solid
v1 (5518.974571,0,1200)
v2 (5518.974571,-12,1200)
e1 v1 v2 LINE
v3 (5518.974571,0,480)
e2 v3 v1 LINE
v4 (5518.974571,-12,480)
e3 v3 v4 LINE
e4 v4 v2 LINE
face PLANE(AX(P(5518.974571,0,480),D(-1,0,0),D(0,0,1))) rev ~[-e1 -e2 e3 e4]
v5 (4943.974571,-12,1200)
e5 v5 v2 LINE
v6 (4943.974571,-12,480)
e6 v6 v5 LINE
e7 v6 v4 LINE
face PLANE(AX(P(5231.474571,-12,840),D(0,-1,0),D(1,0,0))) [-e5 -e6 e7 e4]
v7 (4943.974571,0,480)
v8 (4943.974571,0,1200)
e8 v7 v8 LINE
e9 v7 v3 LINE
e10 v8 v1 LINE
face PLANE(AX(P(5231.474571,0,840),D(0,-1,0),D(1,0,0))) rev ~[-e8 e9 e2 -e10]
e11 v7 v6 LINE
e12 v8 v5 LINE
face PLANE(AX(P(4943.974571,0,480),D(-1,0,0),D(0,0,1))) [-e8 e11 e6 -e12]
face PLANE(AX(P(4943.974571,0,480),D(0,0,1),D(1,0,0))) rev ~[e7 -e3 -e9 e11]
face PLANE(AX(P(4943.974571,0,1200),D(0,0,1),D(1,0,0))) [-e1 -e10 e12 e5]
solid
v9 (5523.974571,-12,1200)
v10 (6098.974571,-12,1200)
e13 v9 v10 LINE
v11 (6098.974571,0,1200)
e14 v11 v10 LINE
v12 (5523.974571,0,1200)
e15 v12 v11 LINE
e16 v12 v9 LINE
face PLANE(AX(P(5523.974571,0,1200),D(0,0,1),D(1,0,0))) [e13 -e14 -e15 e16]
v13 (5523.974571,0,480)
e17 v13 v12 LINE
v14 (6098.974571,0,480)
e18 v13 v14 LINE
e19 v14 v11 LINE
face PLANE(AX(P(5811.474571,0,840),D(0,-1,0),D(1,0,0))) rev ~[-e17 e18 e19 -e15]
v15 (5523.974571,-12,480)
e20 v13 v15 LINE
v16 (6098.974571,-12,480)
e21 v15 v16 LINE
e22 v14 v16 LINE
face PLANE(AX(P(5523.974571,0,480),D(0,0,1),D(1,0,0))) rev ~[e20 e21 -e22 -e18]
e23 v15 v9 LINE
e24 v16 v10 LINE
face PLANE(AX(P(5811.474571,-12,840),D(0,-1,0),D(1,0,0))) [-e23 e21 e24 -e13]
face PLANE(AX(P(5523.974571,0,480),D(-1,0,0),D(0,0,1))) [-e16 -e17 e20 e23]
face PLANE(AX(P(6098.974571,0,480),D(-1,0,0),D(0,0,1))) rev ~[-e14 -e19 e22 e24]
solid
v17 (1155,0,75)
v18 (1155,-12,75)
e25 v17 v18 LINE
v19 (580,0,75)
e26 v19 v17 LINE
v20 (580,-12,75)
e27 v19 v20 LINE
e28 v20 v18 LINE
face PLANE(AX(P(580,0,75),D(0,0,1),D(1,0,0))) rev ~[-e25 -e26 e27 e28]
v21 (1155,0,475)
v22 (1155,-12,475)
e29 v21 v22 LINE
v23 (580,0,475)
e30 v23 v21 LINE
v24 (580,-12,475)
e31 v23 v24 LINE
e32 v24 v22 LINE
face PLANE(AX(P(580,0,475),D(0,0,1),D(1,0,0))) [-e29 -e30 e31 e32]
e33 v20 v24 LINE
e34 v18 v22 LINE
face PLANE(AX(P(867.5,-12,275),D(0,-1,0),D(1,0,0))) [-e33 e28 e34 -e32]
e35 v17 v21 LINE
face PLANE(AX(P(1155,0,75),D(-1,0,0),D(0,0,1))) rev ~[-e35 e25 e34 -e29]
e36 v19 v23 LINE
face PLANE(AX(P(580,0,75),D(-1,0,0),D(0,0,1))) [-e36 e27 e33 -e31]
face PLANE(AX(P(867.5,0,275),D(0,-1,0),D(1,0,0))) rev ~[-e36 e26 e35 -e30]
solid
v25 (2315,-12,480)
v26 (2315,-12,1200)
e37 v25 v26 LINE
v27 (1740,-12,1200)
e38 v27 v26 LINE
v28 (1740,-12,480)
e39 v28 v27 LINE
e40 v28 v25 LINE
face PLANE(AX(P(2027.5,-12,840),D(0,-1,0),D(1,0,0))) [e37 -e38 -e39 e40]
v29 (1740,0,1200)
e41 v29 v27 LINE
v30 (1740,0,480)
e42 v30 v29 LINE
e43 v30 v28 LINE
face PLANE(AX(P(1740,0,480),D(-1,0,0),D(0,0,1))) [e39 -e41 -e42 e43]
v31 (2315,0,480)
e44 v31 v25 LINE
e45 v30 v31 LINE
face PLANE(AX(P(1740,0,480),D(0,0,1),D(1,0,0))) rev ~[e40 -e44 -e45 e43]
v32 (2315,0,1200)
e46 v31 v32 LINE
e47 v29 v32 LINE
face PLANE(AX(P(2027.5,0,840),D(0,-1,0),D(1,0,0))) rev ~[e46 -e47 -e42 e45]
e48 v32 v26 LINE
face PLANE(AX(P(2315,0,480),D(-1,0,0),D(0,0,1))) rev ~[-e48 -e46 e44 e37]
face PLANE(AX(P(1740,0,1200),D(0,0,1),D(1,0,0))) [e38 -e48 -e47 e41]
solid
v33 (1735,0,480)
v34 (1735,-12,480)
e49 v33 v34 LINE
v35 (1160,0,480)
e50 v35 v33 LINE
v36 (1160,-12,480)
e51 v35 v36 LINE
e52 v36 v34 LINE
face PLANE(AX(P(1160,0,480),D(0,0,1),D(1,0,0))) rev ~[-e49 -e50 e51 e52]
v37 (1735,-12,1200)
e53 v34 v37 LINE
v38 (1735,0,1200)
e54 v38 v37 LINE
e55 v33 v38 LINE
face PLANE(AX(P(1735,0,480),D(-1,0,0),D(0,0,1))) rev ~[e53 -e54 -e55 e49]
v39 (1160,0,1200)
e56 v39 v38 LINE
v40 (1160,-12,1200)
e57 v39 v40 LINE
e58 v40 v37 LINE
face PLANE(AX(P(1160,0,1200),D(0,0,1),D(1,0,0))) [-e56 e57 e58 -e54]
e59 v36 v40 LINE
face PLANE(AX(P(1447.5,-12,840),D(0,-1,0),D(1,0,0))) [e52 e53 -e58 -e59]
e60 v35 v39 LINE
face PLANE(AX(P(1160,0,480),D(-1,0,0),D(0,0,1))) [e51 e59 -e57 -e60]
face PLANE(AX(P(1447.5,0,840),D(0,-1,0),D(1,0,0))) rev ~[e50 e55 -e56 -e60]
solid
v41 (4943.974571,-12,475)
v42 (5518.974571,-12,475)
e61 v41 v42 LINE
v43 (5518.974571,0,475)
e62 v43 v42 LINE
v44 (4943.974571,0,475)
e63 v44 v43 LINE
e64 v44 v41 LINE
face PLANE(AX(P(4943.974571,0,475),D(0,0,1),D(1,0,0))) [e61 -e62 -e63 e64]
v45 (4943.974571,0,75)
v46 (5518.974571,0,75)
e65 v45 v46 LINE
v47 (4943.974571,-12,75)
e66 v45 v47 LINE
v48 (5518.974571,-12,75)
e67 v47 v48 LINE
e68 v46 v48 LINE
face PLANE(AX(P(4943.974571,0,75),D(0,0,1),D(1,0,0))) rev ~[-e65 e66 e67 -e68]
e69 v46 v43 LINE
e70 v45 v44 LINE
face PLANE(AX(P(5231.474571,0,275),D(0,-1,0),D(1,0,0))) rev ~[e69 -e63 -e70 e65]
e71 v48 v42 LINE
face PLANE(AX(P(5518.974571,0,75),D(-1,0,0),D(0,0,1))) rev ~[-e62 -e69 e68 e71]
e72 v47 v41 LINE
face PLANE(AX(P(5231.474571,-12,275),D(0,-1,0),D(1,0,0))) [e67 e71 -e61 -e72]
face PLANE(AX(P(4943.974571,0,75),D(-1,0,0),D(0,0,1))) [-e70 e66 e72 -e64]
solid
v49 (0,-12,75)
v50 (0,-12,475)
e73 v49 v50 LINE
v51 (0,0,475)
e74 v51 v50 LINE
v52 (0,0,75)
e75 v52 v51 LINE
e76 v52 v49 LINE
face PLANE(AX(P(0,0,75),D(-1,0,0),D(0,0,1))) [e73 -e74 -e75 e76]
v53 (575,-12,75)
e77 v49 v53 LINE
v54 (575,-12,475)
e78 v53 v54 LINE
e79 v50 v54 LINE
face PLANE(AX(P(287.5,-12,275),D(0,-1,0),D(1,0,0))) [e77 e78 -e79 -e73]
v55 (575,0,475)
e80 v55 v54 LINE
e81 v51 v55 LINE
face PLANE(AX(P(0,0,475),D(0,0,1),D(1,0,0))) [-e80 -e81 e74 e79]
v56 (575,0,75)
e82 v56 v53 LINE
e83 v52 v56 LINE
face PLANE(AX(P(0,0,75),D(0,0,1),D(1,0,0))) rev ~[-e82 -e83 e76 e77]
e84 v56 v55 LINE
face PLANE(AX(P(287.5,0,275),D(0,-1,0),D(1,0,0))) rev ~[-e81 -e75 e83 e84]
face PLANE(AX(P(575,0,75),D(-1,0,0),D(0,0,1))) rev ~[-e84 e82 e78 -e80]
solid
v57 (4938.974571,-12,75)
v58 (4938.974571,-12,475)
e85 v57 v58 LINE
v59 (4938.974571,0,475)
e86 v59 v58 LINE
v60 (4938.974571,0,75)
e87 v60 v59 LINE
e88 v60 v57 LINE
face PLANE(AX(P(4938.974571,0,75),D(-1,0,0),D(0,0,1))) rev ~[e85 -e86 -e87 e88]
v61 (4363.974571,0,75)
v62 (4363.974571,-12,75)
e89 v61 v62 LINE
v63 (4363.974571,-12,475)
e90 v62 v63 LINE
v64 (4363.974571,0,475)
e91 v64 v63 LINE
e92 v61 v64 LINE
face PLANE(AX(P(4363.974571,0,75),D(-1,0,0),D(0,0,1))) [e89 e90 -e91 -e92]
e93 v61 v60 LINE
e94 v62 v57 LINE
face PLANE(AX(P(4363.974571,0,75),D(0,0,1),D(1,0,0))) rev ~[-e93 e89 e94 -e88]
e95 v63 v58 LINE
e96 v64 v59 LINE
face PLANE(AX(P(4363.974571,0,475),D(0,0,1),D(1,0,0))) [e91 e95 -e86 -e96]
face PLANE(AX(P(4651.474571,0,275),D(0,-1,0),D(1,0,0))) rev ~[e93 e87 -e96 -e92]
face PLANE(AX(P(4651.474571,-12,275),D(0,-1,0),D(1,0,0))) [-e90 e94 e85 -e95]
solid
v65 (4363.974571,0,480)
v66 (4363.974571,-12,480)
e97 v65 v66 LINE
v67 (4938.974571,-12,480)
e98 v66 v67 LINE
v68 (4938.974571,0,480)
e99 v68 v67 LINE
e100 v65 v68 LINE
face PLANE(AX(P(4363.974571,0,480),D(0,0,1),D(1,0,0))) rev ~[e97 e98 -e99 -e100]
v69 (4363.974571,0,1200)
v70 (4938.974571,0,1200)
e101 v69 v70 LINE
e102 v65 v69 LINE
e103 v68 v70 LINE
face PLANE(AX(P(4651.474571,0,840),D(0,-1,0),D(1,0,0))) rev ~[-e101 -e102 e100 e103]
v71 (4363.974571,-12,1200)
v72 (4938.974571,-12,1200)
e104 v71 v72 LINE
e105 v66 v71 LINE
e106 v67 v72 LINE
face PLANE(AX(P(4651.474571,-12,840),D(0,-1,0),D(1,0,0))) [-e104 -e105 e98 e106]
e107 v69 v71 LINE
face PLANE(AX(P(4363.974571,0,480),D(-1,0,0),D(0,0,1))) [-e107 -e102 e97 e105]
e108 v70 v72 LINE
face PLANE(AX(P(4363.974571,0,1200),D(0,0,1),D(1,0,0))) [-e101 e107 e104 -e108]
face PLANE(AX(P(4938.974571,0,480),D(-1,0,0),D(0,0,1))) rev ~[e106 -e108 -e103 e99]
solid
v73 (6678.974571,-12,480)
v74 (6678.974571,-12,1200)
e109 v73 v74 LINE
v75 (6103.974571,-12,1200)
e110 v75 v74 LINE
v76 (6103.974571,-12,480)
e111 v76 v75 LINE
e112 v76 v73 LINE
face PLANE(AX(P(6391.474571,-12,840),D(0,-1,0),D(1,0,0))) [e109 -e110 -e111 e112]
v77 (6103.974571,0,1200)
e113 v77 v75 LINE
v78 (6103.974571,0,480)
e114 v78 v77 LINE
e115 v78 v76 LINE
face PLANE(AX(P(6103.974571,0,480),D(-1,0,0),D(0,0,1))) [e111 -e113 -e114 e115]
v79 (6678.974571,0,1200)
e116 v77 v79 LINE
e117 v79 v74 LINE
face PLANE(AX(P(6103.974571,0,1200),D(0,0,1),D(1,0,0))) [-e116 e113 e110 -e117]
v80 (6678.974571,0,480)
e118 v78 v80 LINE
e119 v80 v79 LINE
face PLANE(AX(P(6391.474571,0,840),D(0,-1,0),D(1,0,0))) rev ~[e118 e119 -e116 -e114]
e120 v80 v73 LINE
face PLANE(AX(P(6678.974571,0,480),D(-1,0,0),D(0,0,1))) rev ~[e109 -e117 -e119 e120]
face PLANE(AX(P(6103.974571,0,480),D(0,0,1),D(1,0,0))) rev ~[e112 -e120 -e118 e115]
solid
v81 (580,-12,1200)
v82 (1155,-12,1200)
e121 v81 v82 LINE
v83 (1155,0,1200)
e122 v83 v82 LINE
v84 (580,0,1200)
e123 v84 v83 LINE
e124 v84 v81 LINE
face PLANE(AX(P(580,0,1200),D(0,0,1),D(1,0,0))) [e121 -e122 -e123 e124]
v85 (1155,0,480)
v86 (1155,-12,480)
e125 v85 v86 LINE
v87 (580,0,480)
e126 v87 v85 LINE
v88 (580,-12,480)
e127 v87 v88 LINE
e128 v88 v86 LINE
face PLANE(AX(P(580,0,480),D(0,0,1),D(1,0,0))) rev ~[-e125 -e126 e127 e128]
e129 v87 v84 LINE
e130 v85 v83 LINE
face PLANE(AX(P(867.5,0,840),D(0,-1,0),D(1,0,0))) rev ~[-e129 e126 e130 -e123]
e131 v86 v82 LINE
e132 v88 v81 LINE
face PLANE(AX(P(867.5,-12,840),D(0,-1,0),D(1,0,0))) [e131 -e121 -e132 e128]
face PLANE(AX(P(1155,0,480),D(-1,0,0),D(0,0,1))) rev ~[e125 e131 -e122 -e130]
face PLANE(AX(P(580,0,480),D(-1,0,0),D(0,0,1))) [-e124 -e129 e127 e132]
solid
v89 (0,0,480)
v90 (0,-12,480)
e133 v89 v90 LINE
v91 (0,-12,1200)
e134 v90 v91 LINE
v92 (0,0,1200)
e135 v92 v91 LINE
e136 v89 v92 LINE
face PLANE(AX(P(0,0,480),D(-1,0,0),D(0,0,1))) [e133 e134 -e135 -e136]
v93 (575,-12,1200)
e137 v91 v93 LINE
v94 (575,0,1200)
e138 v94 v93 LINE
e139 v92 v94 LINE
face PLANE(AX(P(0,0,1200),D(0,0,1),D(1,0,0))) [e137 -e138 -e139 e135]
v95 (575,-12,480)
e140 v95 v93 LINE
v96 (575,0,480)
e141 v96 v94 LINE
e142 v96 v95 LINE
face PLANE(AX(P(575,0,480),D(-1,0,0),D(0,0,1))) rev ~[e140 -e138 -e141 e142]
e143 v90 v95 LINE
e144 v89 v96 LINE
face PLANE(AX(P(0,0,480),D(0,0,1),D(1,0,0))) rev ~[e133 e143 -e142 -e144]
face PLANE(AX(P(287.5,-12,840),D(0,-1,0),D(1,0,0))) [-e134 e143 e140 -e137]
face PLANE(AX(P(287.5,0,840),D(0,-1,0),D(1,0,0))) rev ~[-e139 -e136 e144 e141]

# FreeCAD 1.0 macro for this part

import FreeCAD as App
import Part
import Sketcher
Q = App.Units.Quantity

doc = App.newDocument("Part")
body = doc.addObject("PartDesign::Body", "Body")
body.AllowCompound = True

# Sketch on XZ plane
sketch1 = doc.addObject("Sketcher::SketchObject", "Sketch")
body.addObject(sketch1)
sketch1.AttachmentSupport = (doc.XZ_Plane, [""])
sketch1.MapMode = "FlatFace"
sketch1.addGeometry([
    Part.LineSegment(App.Vector(0, 1200, 0), App.Vector(0, 480, 0)),  # 0
    Part.LineSegment(App.Vector(0, 480, 0), App.Vector(575, 480, 0)),  # 1
    Part.LineSegment(App.Vector(575, 480, 0), App.Vector(575, 1200, 0)),  # 2
    Part.LineSegment(App.Vector(575, 1200, 0), App.Vector(0, 1200, 0)),  # 3
    Part.LineSegment(App.Vector(580, 1200, 0), App.Vector(580, 480, 0)),  # 4
    Part.LineSegment(App.Vector(580, 480, 0), App.Vector(1155, 480, 0)),  # 5
    Part.LineSegment(App.Vector(1155, 480, 0), App.Vector(1155, 1200, 0)),  # 6
    Part.LineSegment(App.Vector(1155, 1200, 0), App.Vector(580, 1200, 0)),  # 7
    Part.LineSegment(App.Vector(1160, 1200, 0), App.Vector(1160, 480, 0)),  # 8
    Part.LineSegment(App.Vector(1160, 480, 0), App.Vector(1735, 480, 0)),  # 9
    Part.LineSegment(App.Vector(1735, 480, 0), App.Vector(1735, 1200, 0)),  # 10
    Part.LineSegment(App.Vector(1735, 1200, 0), App.Vector(1160, 1200, 0)),  # 11
    Part.LineSegment(App.Vector(1740, 1200, 0), App.Vector(1740, 480, 0)),  # 12
    Part.LineSegment(App.Vector(1740, 480, 0), App.Vector(2315, 480, 0)),  # 13
    Part.LineSegment(App.Vector(2315, 480, 0), App.Vector(2315, 1200, 0)),  # 14
    Part.LineSegment(App.Vector(2315, 1200, 0), App.Vector(1740, 1200, 0)),  # 15
    Part.LineSegment(App.Vector(0, 475, 0), App.Vector(0, 75, 0)),  # 16
    Part.LineSegment(App.Vector(0, 75, 0), App.Vector(575, 75, 0)),  # 17
    Part.LineSegment(App.Vector(575, 75, 0), App.Vector(575, 475, 0)),  # 18
    Part.LineSegment(App.Vector(575, 475, 0), App.Vector(0, 475, 0)),  # 19
    Part.LineSegment(App.Vector(580, 475, 0), App.Vector(580, 75, 0)),  # 20
    Part.LineSegment(App.Vector(580, 75, 0), App.Vector(1155, 75, 0)),  # 21
    Part.LineSegment(App.Vector(1155, 75, 0), App.Vector(1155, 475, 0)),  # 22
    Part.LineSegment(App.Vector(1155, 475, 0), App.Vector(580, 475, 0)),  # 23
    Part.LineSegment(App.Vector(4364, 1200, 0), App.Vector(4364, 480, 0)),  # 24
    Part.LineSegment(App.Vector(4364, 480, 0), App.Vector(4939, 480, 0)),  # 25
    Part.LineSegment(App.Vector(4939, 480, 0), App.Vector(4939, 1200, 0)),  # 26
    Part.LineSegment(App.Vector(4939, 1200, 0), App.Vector(4364, 1200, 0)),  # 27
    Part.LineSegment(App.Vector(4944, 1200, 0), App.Vector(4944, 480, 0)),  # 28
    Part.LineSegment(App.Vector(4944, 480, 0), App.Vector(5519, 480, 0)),  # 29
    Part.LineSegment(App.Vector(5519, 480, 0), App.Vector(5519, 1200, 0)),  # 30
    Part.LineSegment(App.Vector(5519, 1200, 0), App.Vector(4944, 1200, 0)),  # 31
    Part.LineSegment(App.Vector(5524, 1200, 0), App.Vector(5524, 480, 0)),  # 32
    Part.LineSegment(App.Vector(5524, 480, 0), App.Vector(6099, 480, 0)),  # 33
    Part.LineSegment(App.Vector(6099, 480, 0), App.Vector(6099, 1200, 0)),  # 34
    Part.LineSegment(App.Vector(6099, 1200, 0), App.Vector(5524, 1200, 0)),  # 35
    Part.LineSegment(App.Vector(6104, 1200, 0), App.Vector(6104, 480, 0)),  # 36
    Part.LineSegment(App.Vector(6104, 480, 0), App.Vector(6679, 480, 0)),  # 37
    Part.LineSegment(App.Vector(6679, 480, 0), App.Vector(6679, 1200, 0)),  # 38
    Part.LineSegment(App.Vector(6679, 1200, 0), App.Vector(6104, 1200, 0)),  # 39
    Part.LineSegment(App.Vector(4364, 475, 0), App.Vector(4364, 75, 0)),  # 40
    Part.LineSegment(App.Vector(4364, 75, 0), App.Vector(4939, 75, 0)),  # 41
    Part.LineSegment(App.Vector(4939, 75, 0), App.Vector(4939, 475, 0)),  # 42
    Part.LineSegment(App.Vector(4939, 475, 0), App.Vector(4364, 475, 0)),  # 43
    Part.LineSegment(App.Vector(4944, 475, 0), App.Vector(4944, 75, 0)),  # 44
    Part.LineSegment(App.Vector(4944, 75, 0), App.Vector(5519, 75, 0)),  # 45
    Part.LineSegment(App.Vector(5519, 75, 0), App.Vector(5519, 475, 0)),  # 46
    Part.LineSegment(App.Vector(5519, 475, 0), App.Vector(4944, 475, 0)),  # 47
], False)
sketch1.addConstraint([
    Sketcher.Constraint("Coincident", 0, 2, 1, 1),
    Sketcher.Constraint("Coincident", 1, 2, 2, 1),
    Sketcher.Constraint("Coincident", 2, 2, 3, 1),
    Sketcher.Constraint("Coincident", 3, 2, 0, 1),
    Sketcher.Constraint("Coincident", 4, 2, 5, 1),
    Sketcher.Constraint("Coincident", 5, 2, 6, 1),
    Sketcher.Constraint("Coincident", 6, 2, 7, 1),
    Sketcher.Constraint("Coincident", 7, 2, 4, 1),
    Sketcher.Constraint("Coincident", 8, 2, 9, 1),
    Sketcher.Constraint("Coincident", 9, 2, 10, 1),
    Sketcher.Constraint("Coincident", 10, 2, 11, 1),
    Sketcher.Constraint("Coincident", 11, 2, 8, 1),
    Sketcher.Constraint("Coincident", 12, 2, 13, 1),
    Sketcher.Constraint("Coincident", 13, 2, 14, 1),
    Sketcher.Constraint("Coincident", 14, 2, 15, 1),
    Sketcher.Constraint("Coincident", 15, 2, 12, 1),
    Sketcher.Constraint("Coincident", 16, 2, 17, 1),
    Sketcher.Constraint("Coincident", 17, 2, 18, 1),
    Sketcher.Constraint("Coincident", 18, 2, 19, 1),
    Sketcher.Constraint("Coincident", 19, 2, 16, 1),
    Sketcher.Constraint("Coincident", 20, 2, 21, 1),
    Sketcher.Constraint("Coincident", 21, 2, 22, 1),
    Sketcher.Constraint("Coincident", 22, 2, 23, 1),
    Sketcher.Constraint("Coincident", 23, 2, 20, 1),
    Sketcher.Constraint("Coincident", 24, 2, 25, 1),
    Sketcher.Constraint("Coincident", 25, 2, 26, 1),
    Sketcher.Constraint("Coincident", 26, 2, 27, 1),
    Sketcher.Constraint("Coincident", 27, 2, 24, 1),
    Sketcher.Constraint("Coincident", 28, 2, 29, 1),
    Sketcher.Constraint("Coincident", 29, 2, 30, 1),
    Sketcher.Constraint("Coincident", 30, 2, 31, 1),
    Sketcher.Constraint("Coincident", 31, 2, 28, 1),
    Sketcher.Constraint("Coincident", 32, 2, 33, 1),
    Sketcher.Constraint("Coincident", 33, 2, 34, 1),
    Sketcher.Constraint("Coincident", 34, 2, 35, 1),
    Sketcher.Constraint("Coincident", 35, 2, 32, 1),
    Sketcher.Constraint("Coincident", 36, 2, 37, 1),
    Sketcher.Constraint("Coincident", 37, 2, 38, 1),
    Sketcher.Constraint("Coincident", 38, 2, 39, 1),
    Sketcher.Constraint("Coincident", 39, 2, 36, 1),
    Sketcher.Constraint("Coincident", 40, 2, 41, 1),
    Sketcher.Constraint("Coincident", 41, 2, 42, 1),
    Sketcher.Constraint("Coincident", 42, 2, 43, 1),
    Sketcher.Constraint("Coincident", 43, 2, 40, 1),
    Sketcher.Constraint("Coincident", 44, 2, 45, 1),
    Sketcher.Constraint("Coincident", 45, 2, 46, 1),
    Sketcher.Constraint("Coincident", 46, 2, 47, 1),
    Sketcher.Constraint("Coincident", 47, 2, 44, 1),
    Sketcher.Constraint("Vertical", 0),
    Sketcher.Constraint("Horizontal", 1),
    Sketcher.Constraint("Vertical", 2),
    Sketcher.Constraint("Horizontal", 3),
    Sketcher.Constraint("Vertical", 4),
    Sketcher.Constraint("Horizontal", 5),
    Sketcher.Constraint("Vertical", 6),
    Sketcher.Constraint("Horizontal", 7),
    Sketcher.Constraint("Vertical", 8),
    Sketcher.Constraint("Horizontal", 9),
    Sketcher.Constraint("Vertical", 10),
    Sketcher.Constraint("Horizontal", 11),
    Sketcher.Constraint("Vertical", 12),
    Sketcher.Constraint("Horizontal", 13),
    Sketcher.Constraint("Vertical", 14),
    Sketcher.Constraint("Horizontal", 15),
    Sketcher.Constraint("Vertical", 16),
    Sketcher.Constraint("Horizontal", 17),
    Sketcher.Constraint("Vertical", 18),
    Sketcher.Constraint("Horizontal", 19),
    Sketcher.Constraint("Vertical", 20),
    Sketcher.Constraint("Horizontal", 21),
    Sketcher.Constraint("Vertical", 22),
    Sketcher.Constraint("Horizontal", 23),
    Sketcher.Constraint("Vertical", 24),
    Sketcher.Constraint("Horizontal", 25),
    Sketcher.Constraint("Vertical", 26),
    Sketcher.Constraint("Horizontal", 27),
    Sketcher.Constraint("Vertical", 28),
    Sketcher.Constraint("Horizontal", 29),
    Sketcher.Constraint("Vertical", 30),
    Sketcher.Constraint("Horizontal", 31),
    Sketcher.Constraint("Vertical", 32),
    Sketcher.Constraint("Horizontal", 33),
    Sketcher.Constraint("Vertical", 34),
    Sketcher.Constraint("Horizontal", 35),
    Sketcher.Constraint("Vertical", 36),
    Sketcher.Constraint("Horizontal", 37),
    Sketcher.Constraint("Vertical", 38),
    Sketcher.Constraint("Horizontal", 39),
    Sketcher.Constraint("Vertical", 40),
    Sketcher.Constraint("Horizontal", 41),
    Sketcher.Constraint("Vertical", 42),
    Sketcher.Constraint("Horizontal", 43),
    Sketcher.Constraint("Vertical", 44),
    Sketcher.Constraint("Horizontal", 45),
    Sketcher.Constraint("Vertical", 46),
    Sketcher.Constraint("Horizontal", 47),
    Sketcher.Constraint("PointOnObject", 0, 2, -2),
    Sketcher.Constraint("PointOnObject", 16, 2, -2),
    Sketcher.Constraint("Horizontal", 1, 2, 4, 2),
    Sketcher.Constraint("Horizontal", 3, 2, 6, 2),
    Sketcher.Constraint("Horizontal", 5, 2, 8, 2),
    Sketcher.Constraint("Horizontal", 7, 2, 10, 2),
    Sketcher.Constraint("Horizontal", 9, 2, 12, 2),
    Sketcher.Constraint("Horizontal", 11, 2, 14, 2),
    Sketcher.Constraint("Horizontal", 17, 2, 20, 2),
    Sketcher.Constraint("Horizontal", 19, 2, 22, 2),
    Sketcher.Constraint("Horizontal", 13, 2, 24, 2),
    Sketcher.Constraint("Horizontal", 15, 2, 26, 2),
    Sketcher.Constraint("Horizontal", 25, 2, 28, 2),
    Sketcher.Constraint("Horizontal", 27, 2, 30, 2),
    Sketcher.Constraint("Horizontal", 29, 2, 32, 2),
    Sketcher.Constraint("Horizontal", 31, 2, 34, 2),
    Sketcher.Constraint("Horizontal", 33, 2, 36, 2),
    Sketcher.Constraint("Horizontal", 35, 2, 38, 2),
    Sketcher.Constraint("Horizontal", 21, 2, 40, 2),
    Sketcher.Constraint("Horizontal", 23, 2, 42, 2),
    Sketcher.Constraint("Horizontal", 41, 2, 44, 2),
    Sketcher.Constraint("Horizontal", 43, 2, 46, 2),
    Sketcher.Constraint("Vertical", 2, 2, 17, 2),
    Sketcher.Constraint("Vertical", 7, 2, 20, 2),
    Sketcher.Constraint("Vertical", 6, 2, 21, 2),
    Sketcher.Constraint("Vertical", 27, 2, 40, 2),
    Sketcher.Constraint("Vertical", 26, 2, 41, 2),
    Sketcher.Constraint("Vertical", 31, 2, 44, 2),
    Sketcher.Constraint("Vertical", 30, 2, 45, 2),
    Sketcher.Constraint("Equal", 3, 5),
    Sketcher.Constraint("Equal", 7, 9),
    Sketcher.Constraint("Equal", 11, 13),
    Sketcher.Constraint("Equal", 23, 25),
    Sketcher.Constraint("Equal", 27, 29),
    Sketcher.Constraint("Equal", 31, 33),
    Sketcher.Constraint("Equal", 35, 37),
    Sketcher.Constraint("DistanceX", 1, 1, 1, 2, Q("575 mm")),
    Sketcher.Constraint("DistanceY", 0, 2, 0, 1, Q("720 mm")),
    Sketcher.Constraint("DistanceY", 16, 2, 16, 1, Q("400 mm")),
    Sketcher.Constraint("DistanceY", -1, 1, 0, 2, Q("480 mm")),
    Sketcher.Constraint("DistanceX", -1, 1, 4, 2, Q("580 mm")),
    Sketcher.Constraint("DistanceX", -1, 1, 8, 2, Q("1160 mm")),
    Sketcher.Constraint("DistanceX", -1, 1, 12, 2, Q("1740 mm")),
    Sketcher.Constraint("DistanceY", -1, 1, 16, 2, Q("75 mm")),
    Sketcher.Constraint("DistanceX", 25, 2, 28, 2, Q("5 mm")),
    Sketcher.Constraint("DistanceX", 29, 2, 32, 2, Q("5 mm")),
    Sketcher.Constraint("DistanceX", 33, 2, 36, 2, Q("5 mm")),
    Sketcher.Constraint("DistanceX", -1, 1, 24, 2, Q("4363.974571 mm")),
])
pad1 = doc.addObject("PartDesign::Pad", "Pad")
body.addObject(pad1)
pad1.Profile = sketch1
pad1.Length = 12

doc.recompute()
